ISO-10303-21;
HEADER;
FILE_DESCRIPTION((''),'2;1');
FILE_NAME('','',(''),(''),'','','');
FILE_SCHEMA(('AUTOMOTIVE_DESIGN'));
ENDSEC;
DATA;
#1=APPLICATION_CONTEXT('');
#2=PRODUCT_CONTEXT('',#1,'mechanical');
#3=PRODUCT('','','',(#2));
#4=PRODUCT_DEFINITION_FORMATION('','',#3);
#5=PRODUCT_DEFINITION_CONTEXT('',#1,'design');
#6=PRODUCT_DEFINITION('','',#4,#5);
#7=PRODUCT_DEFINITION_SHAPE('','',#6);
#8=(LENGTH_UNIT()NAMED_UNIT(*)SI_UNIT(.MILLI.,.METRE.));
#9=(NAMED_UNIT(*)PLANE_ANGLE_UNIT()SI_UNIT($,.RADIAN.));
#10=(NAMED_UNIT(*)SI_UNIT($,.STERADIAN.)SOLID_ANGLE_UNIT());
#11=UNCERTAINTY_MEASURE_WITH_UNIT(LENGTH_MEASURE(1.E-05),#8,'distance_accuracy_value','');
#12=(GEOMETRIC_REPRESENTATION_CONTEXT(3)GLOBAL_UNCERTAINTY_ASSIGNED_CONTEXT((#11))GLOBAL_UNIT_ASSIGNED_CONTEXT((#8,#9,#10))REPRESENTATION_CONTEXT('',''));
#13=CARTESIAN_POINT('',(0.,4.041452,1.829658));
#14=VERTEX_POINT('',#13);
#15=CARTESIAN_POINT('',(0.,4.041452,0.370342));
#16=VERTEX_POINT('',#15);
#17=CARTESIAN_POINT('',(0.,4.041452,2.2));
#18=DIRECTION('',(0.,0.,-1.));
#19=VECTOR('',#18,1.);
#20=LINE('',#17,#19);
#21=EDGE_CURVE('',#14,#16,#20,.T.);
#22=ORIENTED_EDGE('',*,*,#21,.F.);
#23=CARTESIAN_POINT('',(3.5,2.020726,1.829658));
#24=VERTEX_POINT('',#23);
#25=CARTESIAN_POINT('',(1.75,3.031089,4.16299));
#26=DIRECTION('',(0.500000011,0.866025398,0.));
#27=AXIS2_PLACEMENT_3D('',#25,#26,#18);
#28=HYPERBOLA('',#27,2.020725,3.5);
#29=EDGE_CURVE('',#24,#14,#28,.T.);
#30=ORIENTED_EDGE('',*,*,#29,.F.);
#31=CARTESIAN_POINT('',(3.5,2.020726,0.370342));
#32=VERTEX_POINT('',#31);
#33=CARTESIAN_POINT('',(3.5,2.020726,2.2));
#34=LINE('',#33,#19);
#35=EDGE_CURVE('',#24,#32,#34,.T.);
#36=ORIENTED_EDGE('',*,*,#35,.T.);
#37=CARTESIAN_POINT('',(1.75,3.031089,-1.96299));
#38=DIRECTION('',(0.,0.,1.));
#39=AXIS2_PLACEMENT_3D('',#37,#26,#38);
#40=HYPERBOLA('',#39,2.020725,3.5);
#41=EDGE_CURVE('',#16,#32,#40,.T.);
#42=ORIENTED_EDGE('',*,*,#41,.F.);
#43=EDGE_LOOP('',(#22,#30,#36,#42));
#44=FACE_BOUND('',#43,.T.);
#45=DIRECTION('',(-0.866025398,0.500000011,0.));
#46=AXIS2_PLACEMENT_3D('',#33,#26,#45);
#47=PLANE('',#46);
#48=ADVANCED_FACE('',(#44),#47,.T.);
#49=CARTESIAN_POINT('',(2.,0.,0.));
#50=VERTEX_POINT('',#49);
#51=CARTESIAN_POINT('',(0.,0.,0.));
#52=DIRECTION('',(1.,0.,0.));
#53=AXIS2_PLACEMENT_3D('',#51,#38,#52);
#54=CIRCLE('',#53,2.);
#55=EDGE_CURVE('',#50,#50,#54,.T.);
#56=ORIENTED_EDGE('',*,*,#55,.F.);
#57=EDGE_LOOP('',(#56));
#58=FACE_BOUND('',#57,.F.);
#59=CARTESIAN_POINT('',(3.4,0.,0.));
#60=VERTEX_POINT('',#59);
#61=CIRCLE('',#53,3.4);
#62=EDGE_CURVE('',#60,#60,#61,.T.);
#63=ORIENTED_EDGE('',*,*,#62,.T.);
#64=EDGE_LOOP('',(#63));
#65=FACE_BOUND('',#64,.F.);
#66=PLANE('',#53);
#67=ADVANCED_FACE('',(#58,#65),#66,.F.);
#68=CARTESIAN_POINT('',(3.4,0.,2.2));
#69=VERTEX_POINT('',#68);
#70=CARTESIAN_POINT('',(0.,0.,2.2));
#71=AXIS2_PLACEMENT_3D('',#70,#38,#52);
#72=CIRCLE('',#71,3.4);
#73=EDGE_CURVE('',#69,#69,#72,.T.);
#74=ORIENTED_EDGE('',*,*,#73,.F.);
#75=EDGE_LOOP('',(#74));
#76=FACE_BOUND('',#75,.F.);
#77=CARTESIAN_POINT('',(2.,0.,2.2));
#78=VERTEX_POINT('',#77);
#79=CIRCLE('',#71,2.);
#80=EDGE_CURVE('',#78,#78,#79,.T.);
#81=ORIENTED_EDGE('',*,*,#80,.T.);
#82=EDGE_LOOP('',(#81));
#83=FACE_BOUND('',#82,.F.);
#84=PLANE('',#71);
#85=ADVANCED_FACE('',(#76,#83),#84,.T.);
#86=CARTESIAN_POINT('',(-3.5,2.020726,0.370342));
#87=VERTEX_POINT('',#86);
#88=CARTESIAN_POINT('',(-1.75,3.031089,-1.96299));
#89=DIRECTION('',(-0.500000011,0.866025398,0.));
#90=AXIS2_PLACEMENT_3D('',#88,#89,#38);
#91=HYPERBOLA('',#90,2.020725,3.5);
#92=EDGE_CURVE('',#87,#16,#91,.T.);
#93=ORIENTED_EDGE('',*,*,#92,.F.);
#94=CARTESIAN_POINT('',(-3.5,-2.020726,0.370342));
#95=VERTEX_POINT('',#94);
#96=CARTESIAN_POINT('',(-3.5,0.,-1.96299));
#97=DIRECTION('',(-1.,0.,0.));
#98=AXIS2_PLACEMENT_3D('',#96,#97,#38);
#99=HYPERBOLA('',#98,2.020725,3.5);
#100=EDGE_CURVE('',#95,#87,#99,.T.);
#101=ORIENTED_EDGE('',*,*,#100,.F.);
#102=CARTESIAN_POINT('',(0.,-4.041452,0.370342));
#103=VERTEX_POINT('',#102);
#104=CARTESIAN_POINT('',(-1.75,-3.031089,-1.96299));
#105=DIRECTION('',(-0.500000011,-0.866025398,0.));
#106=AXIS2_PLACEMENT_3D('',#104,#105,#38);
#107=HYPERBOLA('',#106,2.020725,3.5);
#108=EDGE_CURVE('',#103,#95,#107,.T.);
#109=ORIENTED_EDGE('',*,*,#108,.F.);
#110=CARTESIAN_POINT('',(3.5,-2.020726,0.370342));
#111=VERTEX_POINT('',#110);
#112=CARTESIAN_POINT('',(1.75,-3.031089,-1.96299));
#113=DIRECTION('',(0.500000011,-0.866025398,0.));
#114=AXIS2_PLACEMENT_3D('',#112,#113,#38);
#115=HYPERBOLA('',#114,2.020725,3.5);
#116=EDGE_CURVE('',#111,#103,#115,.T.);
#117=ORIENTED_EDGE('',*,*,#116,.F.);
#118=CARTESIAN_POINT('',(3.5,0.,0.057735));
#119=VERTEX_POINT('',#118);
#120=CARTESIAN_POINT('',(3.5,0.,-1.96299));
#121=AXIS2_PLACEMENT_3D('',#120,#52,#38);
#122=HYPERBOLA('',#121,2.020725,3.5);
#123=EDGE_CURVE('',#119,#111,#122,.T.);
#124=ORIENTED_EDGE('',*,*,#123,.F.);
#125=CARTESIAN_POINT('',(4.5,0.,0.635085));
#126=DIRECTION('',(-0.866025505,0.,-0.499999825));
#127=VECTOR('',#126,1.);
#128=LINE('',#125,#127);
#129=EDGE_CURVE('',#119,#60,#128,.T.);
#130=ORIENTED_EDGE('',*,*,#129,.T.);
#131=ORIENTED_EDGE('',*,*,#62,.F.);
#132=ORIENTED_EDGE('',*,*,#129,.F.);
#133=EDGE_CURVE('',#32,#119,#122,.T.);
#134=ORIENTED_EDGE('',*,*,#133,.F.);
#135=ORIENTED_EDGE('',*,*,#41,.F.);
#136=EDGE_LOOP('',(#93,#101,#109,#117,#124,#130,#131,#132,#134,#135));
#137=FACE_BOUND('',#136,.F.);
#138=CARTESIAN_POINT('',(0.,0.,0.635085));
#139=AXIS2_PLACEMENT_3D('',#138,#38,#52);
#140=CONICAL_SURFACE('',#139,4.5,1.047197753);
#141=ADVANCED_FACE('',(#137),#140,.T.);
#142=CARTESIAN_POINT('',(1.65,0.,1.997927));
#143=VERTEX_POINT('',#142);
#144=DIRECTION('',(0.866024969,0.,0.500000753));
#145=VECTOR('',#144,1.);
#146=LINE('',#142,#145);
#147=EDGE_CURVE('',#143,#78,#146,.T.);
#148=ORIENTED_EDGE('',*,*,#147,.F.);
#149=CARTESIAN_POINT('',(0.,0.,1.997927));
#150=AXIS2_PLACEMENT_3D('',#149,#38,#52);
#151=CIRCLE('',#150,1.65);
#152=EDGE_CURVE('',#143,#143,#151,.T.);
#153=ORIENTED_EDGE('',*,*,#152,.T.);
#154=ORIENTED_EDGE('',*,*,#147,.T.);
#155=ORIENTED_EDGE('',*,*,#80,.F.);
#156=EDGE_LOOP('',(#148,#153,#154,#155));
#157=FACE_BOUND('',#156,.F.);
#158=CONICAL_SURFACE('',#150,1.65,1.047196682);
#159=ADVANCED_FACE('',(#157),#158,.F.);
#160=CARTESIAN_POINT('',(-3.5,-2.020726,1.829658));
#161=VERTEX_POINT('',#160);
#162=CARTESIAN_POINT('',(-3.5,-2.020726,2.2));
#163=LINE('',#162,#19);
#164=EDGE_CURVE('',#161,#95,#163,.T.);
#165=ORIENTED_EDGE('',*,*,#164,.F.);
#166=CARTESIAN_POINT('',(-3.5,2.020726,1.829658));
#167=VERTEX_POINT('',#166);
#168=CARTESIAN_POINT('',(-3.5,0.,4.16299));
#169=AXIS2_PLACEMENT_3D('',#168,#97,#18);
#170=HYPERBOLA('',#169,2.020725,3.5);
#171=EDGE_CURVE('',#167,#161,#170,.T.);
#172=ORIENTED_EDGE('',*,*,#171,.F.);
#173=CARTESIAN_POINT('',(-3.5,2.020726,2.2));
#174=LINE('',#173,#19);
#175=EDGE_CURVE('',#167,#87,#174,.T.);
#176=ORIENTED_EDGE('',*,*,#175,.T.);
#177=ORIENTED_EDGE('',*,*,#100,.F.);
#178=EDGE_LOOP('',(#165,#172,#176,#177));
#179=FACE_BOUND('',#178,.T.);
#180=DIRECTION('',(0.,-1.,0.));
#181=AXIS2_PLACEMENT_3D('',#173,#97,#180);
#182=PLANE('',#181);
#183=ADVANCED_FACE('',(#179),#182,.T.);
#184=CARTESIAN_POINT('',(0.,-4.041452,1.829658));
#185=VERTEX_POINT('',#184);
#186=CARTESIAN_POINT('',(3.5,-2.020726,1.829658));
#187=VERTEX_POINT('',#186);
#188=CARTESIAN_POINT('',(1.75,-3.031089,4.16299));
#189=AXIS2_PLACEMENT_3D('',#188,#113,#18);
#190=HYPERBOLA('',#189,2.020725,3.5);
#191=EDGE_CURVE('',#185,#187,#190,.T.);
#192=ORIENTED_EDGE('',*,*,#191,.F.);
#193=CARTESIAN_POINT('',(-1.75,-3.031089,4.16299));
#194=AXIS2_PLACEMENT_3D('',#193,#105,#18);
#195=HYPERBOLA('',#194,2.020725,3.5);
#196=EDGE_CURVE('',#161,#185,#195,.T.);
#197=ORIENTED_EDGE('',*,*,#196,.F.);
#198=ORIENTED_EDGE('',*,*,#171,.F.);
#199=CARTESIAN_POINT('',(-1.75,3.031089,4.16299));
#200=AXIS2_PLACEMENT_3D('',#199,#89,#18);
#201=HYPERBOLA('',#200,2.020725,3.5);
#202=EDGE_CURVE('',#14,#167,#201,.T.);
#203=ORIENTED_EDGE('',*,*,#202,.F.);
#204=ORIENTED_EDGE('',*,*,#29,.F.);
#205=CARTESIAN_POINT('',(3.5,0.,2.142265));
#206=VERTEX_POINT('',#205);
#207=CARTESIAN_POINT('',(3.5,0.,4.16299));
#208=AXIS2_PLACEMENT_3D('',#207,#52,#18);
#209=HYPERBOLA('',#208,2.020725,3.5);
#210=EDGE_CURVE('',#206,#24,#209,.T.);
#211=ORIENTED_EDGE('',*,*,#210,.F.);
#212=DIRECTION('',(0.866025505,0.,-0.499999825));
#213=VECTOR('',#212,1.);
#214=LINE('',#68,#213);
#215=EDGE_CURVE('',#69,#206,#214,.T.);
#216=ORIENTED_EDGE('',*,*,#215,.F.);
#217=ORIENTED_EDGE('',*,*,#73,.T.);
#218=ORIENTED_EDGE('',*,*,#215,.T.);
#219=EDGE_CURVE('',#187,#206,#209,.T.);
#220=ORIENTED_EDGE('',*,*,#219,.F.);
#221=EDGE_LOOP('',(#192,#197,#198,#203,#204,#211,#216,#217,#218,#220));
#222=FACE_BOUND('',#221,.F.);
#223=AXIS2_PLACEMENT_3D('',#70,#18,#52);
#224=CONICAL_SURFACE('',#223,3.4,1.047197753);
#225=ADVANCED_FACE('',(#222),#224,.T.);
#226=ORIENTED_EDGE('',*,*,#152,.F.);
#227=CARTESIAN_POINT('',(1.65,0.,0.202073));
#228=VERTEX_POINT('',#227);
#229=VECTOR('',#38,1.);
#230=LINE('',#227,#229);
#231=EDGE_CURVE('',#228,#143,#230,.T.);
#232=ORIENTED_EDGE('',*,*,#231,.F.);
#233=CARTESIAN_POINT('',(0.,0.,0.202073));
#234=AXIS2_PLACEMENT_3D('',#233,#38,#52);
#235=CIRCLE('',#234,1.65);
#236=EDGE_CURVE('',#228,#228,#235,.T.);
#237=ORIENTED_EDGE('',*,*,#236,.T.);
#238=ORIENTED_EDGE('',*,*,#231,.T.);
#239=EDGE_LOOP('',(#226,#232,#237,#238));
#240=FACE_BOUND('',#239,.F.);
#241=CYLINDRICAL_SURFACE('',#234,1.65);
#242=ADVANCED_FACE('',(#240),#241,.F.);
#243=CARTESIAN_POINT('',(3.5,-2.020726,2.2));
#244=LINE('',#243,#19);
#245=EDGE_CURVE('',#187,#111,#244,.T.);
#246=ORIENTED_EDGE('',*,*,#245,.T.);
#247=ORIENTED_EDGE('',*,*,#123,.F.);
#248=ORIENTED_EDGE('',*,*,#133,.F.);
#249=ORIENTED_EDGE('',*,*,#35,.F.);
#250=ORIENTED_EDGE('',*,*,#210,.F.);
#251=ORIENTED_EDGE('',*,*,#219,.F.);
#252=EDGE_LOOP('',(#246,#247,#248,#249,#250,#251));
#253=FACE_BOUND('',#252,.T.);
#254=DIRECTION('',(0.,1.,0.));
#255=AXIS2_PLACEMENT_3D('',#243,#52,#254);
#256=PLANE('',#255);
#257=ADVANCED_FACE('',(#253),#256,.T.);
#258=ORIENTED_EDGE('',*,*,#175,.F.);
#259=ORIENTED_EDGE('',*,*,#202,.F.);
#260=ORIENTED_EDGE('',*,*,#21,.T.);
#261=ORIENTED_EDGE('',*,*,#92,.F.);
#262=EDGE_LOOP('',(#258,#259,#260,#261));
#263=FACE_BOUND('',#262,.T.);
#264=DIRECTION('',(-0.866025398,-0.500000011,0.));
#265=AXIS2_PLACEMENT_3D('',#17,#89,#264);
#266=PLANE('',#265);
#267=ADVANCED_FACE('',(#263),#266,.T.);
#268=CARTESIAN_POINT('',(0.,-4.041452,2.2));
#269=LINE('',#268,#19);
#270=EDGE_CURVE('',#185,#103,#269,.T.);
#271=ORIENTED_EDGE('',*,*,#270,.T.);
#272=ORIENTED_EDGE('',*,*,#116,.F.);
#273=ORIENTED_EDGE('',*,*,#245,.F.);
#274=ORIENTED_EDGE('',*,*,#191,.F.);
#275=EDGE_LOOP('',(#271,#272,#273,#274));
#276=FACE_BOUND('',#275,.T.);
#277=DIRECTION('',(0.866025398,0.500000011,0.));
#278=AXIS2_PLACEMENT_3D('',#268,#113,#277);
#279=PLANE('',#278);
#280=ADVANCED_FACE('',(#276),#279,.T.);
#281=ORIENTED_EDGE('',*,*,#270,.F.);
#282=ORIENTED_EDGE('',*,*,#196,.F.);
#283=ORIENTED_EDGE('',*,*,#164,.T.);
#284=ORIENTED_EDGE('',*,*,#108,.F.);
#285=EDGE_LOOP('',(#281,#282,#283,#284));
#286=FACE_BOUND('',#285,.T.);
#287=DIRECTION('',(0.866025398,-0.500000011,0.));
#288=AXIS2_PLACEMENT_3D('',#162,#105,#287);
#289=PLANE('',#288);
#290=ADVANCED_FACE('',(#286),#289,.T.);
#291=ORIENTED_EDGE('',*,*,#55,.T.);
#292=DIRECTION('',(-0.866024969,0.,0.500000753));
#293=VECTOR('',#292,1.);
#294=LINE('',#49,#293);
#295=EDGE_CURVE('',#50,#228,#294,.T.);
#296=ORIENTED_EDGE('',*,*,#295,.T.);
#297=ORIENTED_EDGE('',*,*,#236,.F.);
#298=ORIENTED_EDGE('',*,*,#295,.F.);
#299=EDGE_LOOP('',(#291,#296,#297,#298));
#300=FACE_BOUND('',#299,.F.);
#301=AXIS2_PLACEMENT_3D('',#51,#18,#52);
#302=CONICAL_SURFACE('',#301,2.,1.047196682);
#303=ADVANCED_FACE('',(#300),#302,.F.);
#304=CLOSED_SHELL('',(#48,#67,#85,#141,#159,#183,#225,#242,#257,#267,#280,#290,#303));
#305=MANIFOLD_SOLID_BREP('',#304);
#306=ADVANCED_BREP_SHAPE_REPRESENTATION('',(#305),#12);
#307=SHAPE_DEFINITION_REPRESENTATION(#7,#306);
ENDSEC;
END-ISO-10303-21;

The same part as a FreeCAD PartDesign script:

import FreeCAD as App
import Part
import Sketcher

V = App.Vector
Q = App.Units.Quantity

doc = App.newDocument("Part")
body = doc.addObject("PartDesign::Body", "Body")

# Sketch on XZ plane
sketch1 = body.newObject("Sketcher::SketchObject", "Sketch")
sketch1.AttachmentSupport = (doc.getObject("XZ_Plane"), [""])
sketch1.MapMode = "FlatFace"
sketch1.addGeometry(Part.LineSegment(V(1.65, 0.2, 0), V(2, 0, 0)), False)
sketch1.addGeometry(Part.LineSegment(V(2, 0, 0), V(3.4, 0, 0)), False)
sketch1.addGeometry(Part.LineSegment(V(3.4, 0, 0), V(4.5, 0.64, 0)), False)
sketch1.addGeometry(Part.LineSegment(V(4.5, 0.64, 0), V(4.5, 1.56, 0)), False)
sketch1.addGeometry(Part.LineSegment(V(4.5, 1.56, 0), V(3.4, 2.2, 0)), False)
sketch1.addGeometry(Part.LineSegment(V(3.4, 2.2, 0), V(2, 2.2, 0)), False)
sketch1.addGeometry(Part.LineSegment(V(2, 2.2, 0), V(1.65, 2, 0)), False)
sketch1.addGeometry(Part.LineSegment(V(1.65, 2, 0), V(1.65, 0.2, 0)), False)
sketch1.addConstraint(Sketcher.Constraint("Coincident", 0, 2, 1, 1))
sketch1.addConstraint(Sketcher.Constraint("Coincident", 1, 2, 2, 1))
sketch1.addConstraint(Sketcher.Constraint("Coincident", 2, 2, 3, 1))
sketch1.addConstraint(Sketcher.Constraint("Coincident", 3, 2, 4, 1))
sketch1.addConstraint(Sketcher.Constraint("Coincident", 4, 2, 5, 1))
sketch1.addConstraint(Sketcher.Constraint("Coincident", 5, 2, 6, 1))
sketch1.addConstraint(Sketcher.Constraint("Coincident", 6, 2, 7, 1))
sketch1.addConstraint(Sketcher.Constraint("Coincident", 7, 2, 0, 1))
sketch1.addConstraint(Sketcher.Constraint("Horizontal", 1))
sketch1.addConstraint(Sketcher.Constraint("Vertical", 3))
sketch1.addConstraint(Sketcher.Constraint("Horizontal", 5))
sketch1.addConstraint(Sketcher.Constraint("Vertical", 7))
sketch1.addConstraint(Sketcher.Constraint("PointOnObject", 0, 2, -1))
sketch1.addConstraint(Sketcher.Constraint("Parallel", 0, 4))
sketch1.addConstraint(Sketcher.Constraint("Parallel", 2, 6))
sketch1.addConstraint(Sketcher.Constraint("Vertical", 1, 2, 4, 2))
sketch1.addConstraint(Sketcher.Constraint("Vertical", 0, 2, 5, 2))
sketch1.addConstraint(Sketcher.Constraint("Equal", 2, 4))
sketch1.addConstraint(Sketcher.Constraint("Angle", 2, Q("29.999988 deg")))
sketch1.addConstraint(Sketcher.Constraint("DistanceX", 1, 1, 1, 2, 1.4))
sketch1.addConstraint(Sketcher.Constraint("DistanceX", -1, 1, 0, 2, 2.0))
sketch1.addConstraint(Sketcher.Constraint("DistanceX", -1, 1, 2, 2, 4.5))
sketch1.addConstraint(Sketcher.Constraint("DistanceY", -1, 1, 4, 2, 2.2))
sketch1.addConstraint(Sketcher.Constraint("DistanceX", -1, 1, 6, 2, 1.65))
revolution = body.newObject("PartDesign::Revolution", "Revolution")
revolution.Profile = sketch1
revolution.ReferenceAxis = (sketch1, ["V_Axis"])
revolution.Angle = 360

# Sketch on XY plane
sketch2 = body.newObject("Sketcher::SketchObject", "Sketch001")
sketch2.AttachmentSupport = (doc.getObject("XY_Plane"), [""])
sketch2.MapMode = "FlatFace"
sketch2.AttachmentOffset = App.Placement(V(0, 0, 2.2), App.Rotation())
sketch2.addGeometry(Part.Circle(V(0, 0, 0), V(0, 0, 1), 4.5), False)
sketch2.addGeometry(Part.LineSegment(V(3.5, 2, 0), V(3.5, -2, 0)), False)
sketch2.addGeometry(Part.LineSegment(V(3.5, -2, 0), V(0, -4, 0)), False)
sketch2.addGeometry(Part.LineSegment(V(0, -4, 0), V(-3.5, -2, 0)), False)
sketch2.addGeometry(Part.LineSegment(V(-3.5, -2, 0), V(-3.5, 2, 0)), False)
sketch2.addGeometry(Part.LineSegment(V(-3.5, 2, 0), V(0, 4, 0)), False)
sketch2.addGeometry(Part.LineSegment(V(0, 4, 0), V(3.5, 2, 0)), False)
sketch2.addConstraint(Sketcher.Constraint("Coincident", 1, 2, 2, 1))
sketch2.addConstraint(Sketcher.Constraint("Coincident", 2, 2, 3, 1))
sketch2.addConstraint(Sketcher.Constraint("Coincident", 3, 2, 4, 1))
sketch2.addConstraint(Sketcher.Constraint("Coincident", 4, 2, 5, 1))
sketch2.addConstraint(Sketcher.Constraint("Coincident", 5, 2, 6, 1))
sketch2.addConstraint(Sketcher.Constraint("Coincident", 6, 2, 1, 1))
sketch2.addConstraint(Sketcher.Constraint("Vertical", 1))
sketch2.addConstraint(Sketcher.Constraint("Vertical", 4))
sketch2.addConstraint(Sketcher.Constraint("Coincident", 0, 3, -1, 1))
sketch2.addConstraint(Sketcher.Constraint("Symmetric", 1, 2, 4, 2, -1, 1))
sketch2.addConstraint(Sketcher.Constraint("Symmetric", 2, 2, 5, 2, -1, 1))
sketch2.addConstraint(Sketcher.Constraint("PointOnObject", 2, 2, -2))
sketch2.addConstraint(Sketcher.Constraint("Parallel", 3, 6))
sketch2.addConstraint(Sketcher.Constraint("Horizontal", 1, 2, 3, 2))
sketch2.addConstraint(Sketcher.Constraint("Diameter", 0, 9.0))
sketch2.addConstraint(Sketcher.Constraint("Angle", 2, Q("-149.999999 deg")))
sketch2.addConstraint(Sketcher.Constraint("DistanceX", 3, 2, 1, 2, 7.0))
sketch2.addConstraint(Sketcher.Constraint("DistanceY", 1, 2, 1, 1, 4.041452))
pocket1 = body.newObject("PartDesign::Pocket", "Pocket")
pocket1.Profile = sketch2
pocket1.Length = 2.2

doc.recompute()
